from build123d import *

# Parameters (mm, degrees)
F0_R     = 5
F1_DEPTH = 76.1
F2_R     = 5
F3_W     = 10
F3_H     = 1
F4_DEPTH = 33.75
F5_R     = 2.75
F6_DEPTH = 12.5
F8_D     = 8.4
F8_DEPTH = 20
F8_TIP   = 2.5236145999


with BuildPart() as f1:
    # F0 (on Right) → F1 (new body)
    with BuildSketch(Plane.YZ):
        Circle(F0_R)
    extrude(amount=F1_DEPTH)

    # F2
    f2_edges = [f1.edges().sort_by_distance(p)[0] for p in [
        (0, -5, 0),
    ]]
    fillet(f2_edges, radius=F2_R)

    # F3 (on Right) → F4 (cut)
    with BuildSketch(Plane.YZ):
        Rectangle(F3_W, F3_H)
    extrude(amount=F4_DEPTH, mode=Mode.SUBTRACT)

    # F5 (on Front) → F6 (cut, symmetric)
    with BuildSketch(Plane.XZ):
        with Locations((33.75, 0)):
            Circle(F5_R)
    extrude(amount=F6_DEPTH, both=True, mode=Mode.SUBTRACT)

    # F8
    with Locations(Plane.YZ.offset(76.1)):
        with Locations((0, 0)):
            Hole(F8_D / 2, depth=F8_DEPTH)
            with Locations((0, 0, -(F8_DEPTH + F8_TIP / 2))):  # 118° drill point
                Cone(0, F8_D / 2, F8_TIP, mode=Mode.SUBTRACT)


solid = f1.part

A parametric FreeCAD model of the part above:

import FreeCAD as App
import Part
import Sketcher
from FreeCAD import Vector


def edges_at(feature, points):
    """Names of the edges that pass closest to the given points."""
    edges = feature.Shape.Edges
    near = lambda p: min(range(len(edges)), key=lambda i: edges[i].distToShape(Part.Vertex(*p))[0])
    return sorted({f"Edge{near(p) + 1}" for p in points})

doc = App.newDocument("Part")
body = doc.addObject("PartDesign::Body", "Body")

# Sketch on YZ plane
sketch1 = body.newObject("Sketcher::SketchObject", "Sketch")
sketch1.AttachmentSupport = (doc.getObject("YZ_Plane"), [""])
sketch1.MapMode = "FlatFace"
sketch1.addGeometry(Part.Circle(Vector(0, 0, 0), Vector(0, 0, 1), 5), False)
sketch1.addConstraint([
    Sketcher.Constraint("Coincident", 0, 3, -1, 1),
    Sketcher.Constraint("Diameter", 0, 10.0),
])
pad1 = body.newObject("PartDesign::Pad", "Pad")
pad1.Profile = sketch1
pad1.Length = 76.1
doc.recompute()

fillet = body.newObject("PartDesign::Fillet", "Fillet")
fillet.Base = (pad1, edges_at(pad1, [(0, -5, 0)]))
fillet.Radius = 5

# Sketch on YZ plane
sketch2 = body.newObject("Sketcher::SketchObject", "Sketch001")
sketch2.AttachmentSupport = (doc.getObject("YZ_Plane"), [""])
sketch2.MapMode = "FlatFace"
sketch2.addGeometry([
    Part.LineSegment(Vector(-5, 0.5, 0), Vector(-5, -0.5, 0)),
    Part.LineSegment(Vector(-5, -0.5, 0), Vector(5, -0.5, 0)),
    Part.LineSegment(Vector(5, -0.5, 0), Vector(5, 0.5, 0)),
    Part.LineSegment(Vector(5, 0.5, 0), Vector(-5, 0.5, 0)),
], False)
sketch2.addConstraint([
    Sketcher.Constraint("Coincident", 0, 2, 1, 1),
    Sketcher.Constraint("Coincident", 1, 2, 2, 1),
    Sketcher.Constraint("Coincident", 2, 2, 3, 1),
    Sketcher.Constraint("Coincident", 3, 2, 0, 1),
    Sketcher.Constraint("Vertical", 0),
    Sketcher.Constraint("Horizontal", 1),
    Sketcher.Constraint("Vertical", 2),
    Sketcher.Constraint("Horizontal", 3),
    Sketcher.Constraint("Symmetric", 0, 2, 2, 2, -1, 1),
    Sketcher.Constraint("DistanceX", 1, 1, 1, 2, 10.0),
    Sketcher.Constraint("DistanceY", 0, 2, 0, 1, 1.0),
])
pocket1 = body.newObject("PartDesign::Pocket", "Pocket")
pocket1.Profile = sketch2
pocket1.Length = 33.75
pocket1.Reversed = True

# Sketch on XZ plane
sketch3 = body.newObject("Sketcher::SketchObject", "Sketch002")
sketch3.AttachmentSupport = (doc.getObject("XZ_Plane"), [""])
sketch3.MapMode = "FlatFace"
sketch3.addGeometry(Part.Circle(Vector(33.75, 0, 0), Vector(0, 0, 1), 2.75), False)
sketch3.addConstraint([
    Sketcher.Constraint("PointOnObject", 0, 3, -1),
    Sketcher.Constraint("Diameter", 0, 5.5),
    Sketcher.Constraint("DistanceX", -1, 1, 0, 3, 33.75),
])
pocket2 = body.newObject("PartDesign::Pocket", "Pocket001")
pocket2.Profile = sketch3
pocket2.Length = 25
pocket2.Midplane = True

# Sketch on YZ plane
sketch4 = body.newObject("Sketcher::SketchObject", "Sketch003")
sketch4.AttachmentSupport = (doc.getObject("YZ_Plane"), [""])
sketch4.MapMode = "FlatFace"
sketch4.AttachmentOffset = App.Placement(Vector(0, 0, 76.1), App.Rotation())
sketch4.addGeometry(Part.Circle(Vector(0, 0, 0), Vector(0, 0, 1), 4.2), False)
sketch4.addConstraint([
    Sketcher.Constraint("Coincident", 0, 3, -1, 1),
    Sketcher.Constraint("Diameter", 0, 8.4),
])
doc.recompute()
hole = body.newObject("PartDesign::Hole", "Hole")
hole.Profile = sketch4
hole.ThreadType = "None"
hole.Diameter = 8.4
hole.DepthType = "Dimension"
hole.Depth = 20
hole.DrillPoint = "Angled"
hole.DrillPointAngle = 118

doc.recompute()
